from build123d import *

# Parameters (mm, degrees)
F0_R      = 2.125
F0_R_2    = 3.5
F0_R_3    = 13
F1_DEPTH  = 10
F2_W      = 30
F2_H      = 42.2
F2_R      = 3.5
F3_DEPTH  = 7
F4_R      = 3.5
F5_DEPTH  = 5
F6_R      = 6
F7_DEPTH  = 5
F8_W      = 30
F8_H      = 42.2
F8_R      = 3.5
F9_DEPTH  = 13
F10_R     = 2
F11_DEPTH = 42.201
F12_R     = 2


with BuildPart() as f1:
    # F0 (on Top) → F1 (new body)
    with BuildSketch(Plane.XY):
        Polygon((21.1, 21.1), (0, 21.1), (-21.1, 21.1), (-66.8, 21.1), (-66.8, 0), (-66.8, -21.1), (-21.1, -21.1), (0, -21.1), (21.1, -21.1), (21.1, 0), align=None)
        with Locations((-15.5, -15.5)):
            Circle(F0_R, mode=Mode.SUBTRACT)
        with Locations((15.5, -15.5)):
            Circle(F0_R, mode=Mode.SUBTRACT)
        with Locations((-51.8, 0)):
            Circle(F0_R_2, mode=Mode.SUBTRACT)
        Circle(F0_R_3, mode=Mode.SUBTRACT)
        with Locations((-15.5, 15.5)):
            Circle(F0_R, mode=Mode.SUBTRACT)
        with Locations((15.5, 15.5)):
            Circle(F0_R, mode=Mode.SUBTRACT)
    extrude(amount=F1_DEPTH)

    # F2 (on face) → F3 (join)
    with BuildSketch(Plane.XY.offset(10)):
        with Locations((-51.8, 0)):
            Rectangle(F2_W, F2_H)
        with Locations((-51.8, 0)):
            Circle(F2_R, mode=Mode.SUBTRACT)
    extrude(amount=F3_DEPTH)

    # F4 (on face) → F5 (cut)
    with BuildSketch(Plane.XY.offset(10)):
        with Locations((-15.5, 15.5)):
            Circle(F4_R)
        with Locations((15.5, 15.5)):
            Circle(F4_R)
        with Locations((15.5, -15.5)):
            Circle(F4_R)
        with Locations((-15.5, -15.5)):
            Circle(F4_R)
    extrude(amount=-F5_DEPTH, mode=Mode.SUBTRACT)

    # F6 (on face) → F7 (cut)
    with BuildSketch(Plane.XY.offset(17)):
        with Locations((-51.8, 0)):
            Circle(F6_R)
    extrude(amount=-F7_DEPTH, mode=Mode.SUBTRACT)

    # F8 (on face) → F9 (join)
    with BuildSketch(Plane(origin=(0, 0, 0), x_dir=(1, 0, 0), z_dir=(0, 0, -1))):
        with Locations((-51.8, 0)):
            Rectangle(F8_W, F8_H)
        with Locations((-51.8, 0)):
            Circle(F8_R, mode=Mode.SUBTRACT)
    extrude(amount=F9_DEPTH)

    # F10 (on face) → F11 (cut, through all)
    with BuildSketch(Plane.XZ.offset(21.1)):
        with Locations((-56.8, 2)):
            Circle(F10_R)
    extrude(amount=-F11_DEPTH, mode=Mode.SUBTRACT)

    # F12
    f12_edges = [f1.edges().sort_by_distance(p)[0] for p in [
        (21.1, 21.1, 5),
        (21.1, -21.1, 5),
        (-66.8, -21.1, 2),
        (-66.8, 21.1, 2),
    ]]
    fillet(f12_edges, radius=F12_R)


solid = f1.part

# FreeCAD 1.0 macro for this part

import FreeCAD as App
import Part
import Sketcher


def edges_at(feature, points):
    """Names of the edges that pass closest to the given points."""
    edges = feature.Shape.Edges
    near = lambda p: min(range(len(edges)), key=lambda i: edges[i].distToShape(Part.Vertex(*p))[0])
    return sorted({f"Edge{near(p) + 1}" for p in points})

doc = App.newDocument("Part")
body = doc.addObject("PartDesign::Body", "Body")

# Sketch on XY plane
sketch1 = body.newObject("Sketcher::SketchObject", "Sketch")
sketch1.AttachmentSupport = (doc.getObject("XY_Plane"), [""])
sketch1.MapMode = "FlatFace"
sketch1.addGeometry([
    Part.LineSegment(App.Vector(21.1, 21.1, 0), App.Vector(-66.8, 21.1, 0)),  # 0
    Part.LineSegment(App.Vector(-66.8, 21.1, 0), App.Vector(-66.8, -21.1, 0)),  # 1
    Part.LineSegment(App.Vector(-66.8, -21.1, 0), App.Vector(21.1, -21.1, 0)),  # 2
    Part.LineSegment(App.Vector(21.1, -21.1, 0), App.Vector(21.1, 21.1, 0)),  # 3
    Part.Circle(App.Vector(-15.5, -15.5, 0), App.Vector(0, 0, 1), 2.125),  # 4
    Part.Circle(App.Vector(15.5, -15.5, 0), App.Vector(0, 0, 1), 2.125),  # 5
    Part.Circle(App.Vector(-51.8, 0, 0), App.Vector(0, 0, 1), 3.5),  # 6
    Part.Circle(App.Vector(0, 0, 0), App.Vector(0, 0, 1), 13),  # 7
    Part.Circle(App.Vector(-15.5, 15.5, 0), App.Vector(0, 0, 1), 2.125),  # 8
    Part.Circle(App.Vector(15.5, 15.5, 0), App.Vector(0, 0, 1), 2.125),  # 9
], False)
sketch1.addConstraint([
    Sketcher.Constraint("Coincident", 0, 2, 1, 1),
    Sketcher.Constraint("Coincident", 1, 2, 2, 1),
    Sketcher.Constraint("Coincident", 2, 2, 3, 1),
    Sketcher.Constraint("Coincident", 3, 2, 0, 1),
    Sketcher.Constraint("Horizontal", 0),
    Sketcher.Constraint("Vertical", 1),
    Sketcher.Constraint("Horizontal", 2),
    Sketcher.Constraint("Vertical", 3),
    Sketcher.Constraint("Coincident", 7, 3, -1, 1),
    Sketcher.Constraint("Equal", 4, 5),
    Sketcher.Constraint("Equal", 5, 8),
    Sketcher.Constraint("Equal", 8, 9),
    Sketcher.Constraint("Symmetric", 5, 3, 8, 3, -1, 1),
    Sketcher.Constraint("Symmetric", 4, 3, 9, 3, -1, 1),
    Sketcher.Constraint("Symmetric", 4, 3, 5, 3, -2),
    Sketcher.Constraint("PointOnObject", 6, 3, -1),
    Sketcher.Constraint("Diameter", 6, 7.0),
    Sketcher.Constraint("Diameter", 7, 26.0),
    Sketcher.Constraint("Diameter", 4, 4.25),
    Sketcher.Constraint("DistanceX", 0, 2, 0, 1, 87.9),
    Sketcher.Constraint("DistanceY", 1, 2, 1, 1, 42.2),
    Sketcher.Constraint("DistanceX", 4, 3, 5, 3, 31.0),
    Sketcher.Constraint("DistanceY", 4, 3, 8, 3, 31.0),
    Sketcher.Constraint("DistanceX", 0, 2, 6, 3, 15.0),
    Sketcher.Constraint("DistanceX", 6, 3, -1, 1, 51.8),
    Sketcher.Constraint("DistanceY", -1, 1, 0, 2, 21.1),
])
pad1 = body.newObject("PartDesign::Pad", "Pad")
pad1.Profile = sketch1
pad1.Length = 10

# Sketch on XY plane
sketch2 = body.newObject("Sketcher::SketchObject", "Sketch001")
sketch2.AttachmentSupport = (doc.getObject("XY_Plane"), [""])
sketch2.MapMode = "FlatFace"
sketch2.AttachmentOffset = App.Placement(App.Vector(0, 0, 10), App.Rotation())
sketch2.addGeometry([
    Part.LineSegment(App.Vector(-66.8, 21.1, 0), App.Vector(-66.8, -21.1, 0)),  # 0
    Part.LineSegment(App.Vector(-66.8, -21.1, 0), App.Vector(-36.8, -21.1, 0)),  # 1
    Part.LineSegment(App.Vector(-36.8, -21.1, 0), App.Vector(-36.8, 21.1, 0)),  # 2
    Part.LineSegment(App.Vector(-36.8, 21.1, 0), App.Vector(-66.8, 21.1, 0)),  # 3
    Part.Circle(App.Vector(-51.8, 0, 0), App.Vector(0, 0, 1), 3.5),  # 4
], False)
sketch2.addConstraint([
    Sketcher.Constraint("Coincident", 0, 2, 1, 1),
    Sketcher.Constraint("Coincident", 1, 2, 2, 1),
    Sketcher.Constraint("Coincident", 2, 2, 3, 1),
    Sketcher.Constraint("Coincident", 3, 2, 0, 1),
    Sketcher.Constraint("Vertical", 0),
    Sketcher.Constraint("Horizontal", 1),
    Sketcher.Constraint("Vertical", 2),
    Sketcher.Constraint("Horizontal", 3),
    Sketcher.Constraint("PointOnObject", 4, 3, -1),
    Sketcher.Constraint("Diameter", 4, 7.0),
    Sketcher.Constraint("DistanceX", 1, 1, 1, 2, 30.0),
    Sketcher.Constraint("DistanceY", 0, 2, 0, 1, 42.2),
    Sketcher.Constraint("DistanceX", 0, 2, 4, 3, 15.0),
    Sketcher.Constraint("DistanceX", 4, 3, -1, 1, 51.8),
    Sketcher.Constraint("DistanceY", 0, 2, -1, 1, 21.1),
])
pad2 = body.newObject("PartDesign::Pad", "Pad001")
pad2.Profile = sketch2
pad2.Length = 7

# Sketch on XY plane
sketch3 = body.newObject("Sketcher::SketchObject", "Sketch002")
sketch3.AttachmentSupport = (doc.getObject("XY_Plane"), [""])
sketch3.MapMode = "FlatFace"
sketch3.AttachmentOffset = App.Placement(App.Vector(0, 0, 10), App.Rotation())
sketch3.addGeometry([
    Part.Circle(App.Vector(-15.5, 15.5, 0), App.Vector(0, 0, 1), 3.5),
    Part.Circle(App.Vector(15.5, 15.5, 0), App.Vector(0, 0, 1), 3.5),
    Part.Circle(App.Vector(15.5, -15.5, 0), App.Vector(0, 0, 1), 3.5),
    Part.Circle(App.Vector(-15.5, -15.5, 0), App.Vector(0, 0, 1), 3.5),
], False)
sketch3.addConstraint([
    Sketcher.Constraint("Equal", 0, 1),
    Sketcher.Constraint("Equal", 1, 2),
    Sketcher.Constraint("Equal", 2, 3),
    Sketcher.Constraint("Symmetric", 0, 3, 2, 3, -1, 1),
    Sketcher.Constraint("Symmetric", 1, 3, 3, 3, -1, 1),
    Sketcher.Constraint("Symmetric", 0, 3, 1, 3, -2),
    Sketcher.Constraint("Diameter", 0, 7.0),
    Sketcher.Constraint("DistanceX", 0, 3, 1, 3, 31.0),
    Sketcher.Constraint("DistanceY", 2, 3, 1, 3, 31.0),
])
pocket1 = body.newObject("PartDesign::Pocket", "Pocket")
pocket1.Profile = sketch3
pocket1.Length = 5

# Sketch on XY plane
sketch4 = body.newObject("Sketcher::SketchObject", "Sketch003")
sketch4.AttachmentSupport = (doc.getObject("XY_Plane"), [""])
sketch4.MapMode = "FlatFace"
sketch4.AttachmentOffset = App.Placement(App.Vector(0, 0, 17), App.Rotation())
sketch4.addGeometry(Part.Circle(App.Vector(-51.8, 0, 0), App.Vector(0, 0, 1), 6), False)
sketch4.addConstraint([
    Sketcher.Constraint("PointOnObject", 0, 3, -1),
    Sketcher.Constraint("Diameter", 0, 12.0),
    Sketcher.Constraint("DistanceX", 0, 3, -1, 1, 51.8),
])
pocket2 = body.newObject("PartDesign::Pocket", "Pocket001")
pocket2.Profile = sketch4
pocket2.Length = 5

# Sketch on XY plane
sketch5 = body.newObject("Sketcher::SketchObject", "Sketch004")
sketch5.AttachmentSupport = (doc.getObject("XY_Plane"), [""])
sketch5.MapMode = "FlatFace"
sketch5.addGeometry([
    Part.LineSegment(App.Vector(-66.8, -21.1, 0), App.Vector(-66.8, 21.1, 0)),  # 0
    Part.LineSegment(App.Vector(-66.8, 21.1, 0), App.Vector(-36.8, 21.1, 0)),  # 1
    Part.LineSegment(App.Vector(-36.8, 21.1, 0), App.Vector(-36.8, -21.1, 0)),  # 2
    Part.LineSegment(App.Vector(-36.8, -21.1, 0), App.Vector(-66.8, -21.1, 0)),  # 3
    Part.Circle(App.Vector(-51.8, 0, 0), App.Vector(0, 0, 1), 3.5),  # 4
], False)
sketch5.addConstraint([
    Sketcher.Constraint("Coincident", 0, 2, 1, 1),
    Sketcher.Constraint("Coincident", 1, 2, 2, 1),
    Sketcher.Constraint("Coincident", 2, 2, 3, 1),
    Sketcher.Constraint("Coincident", 3, 2, 0, 1),
    Sketcher.Constraint("Vertical", 0),
    Sketcher.Constraint("Horizontal", 1),
    Sketcher.Constraint("Vertical", 2),
    Sketcher.Constraint("Horizontal", 3),
    Sketcher.Constraint("PointOnObject", 4, 3, -1),
    Sketcher.Constraint("Diameter", 4, 7.0),
    Sketcher.Constraint("DistanceX", 1, 1, 1, 2, 30.0),
    Sketcher.Constraint("DistanceY", 0, 1, 0, 2, 42.2),
    Sketcher.Constraint("DistanceX", 0, 2, 4, 3, 15.0),
    Sketcher.Constraint("DistanceX", 4, 3, -1, 1, 51.8),
    Sketcher.Constraint("DistanceY", -1, 1, 0, 2, 21.1),
])
pad3 = body.newObject("PartDesign::Pad", "Pad002")
pad3.Profile = sketch5
pad3.Length = 13
pad3.Reversed = True

# Sketch on XZ plane
sketch6 = body.newObject("Sketcher::SketchObject", "Sketch005")
sketch6.AttachmentSupport = (doc.getObject("XZ_Plane"), [""])
sketch6.MapMode = "FlatFace"
sketch6.AttachmentOffset = App.Placement(App.Vector(0, 0, 21.1), App.Rotation())
sketch6.addGeometry(Part.Circle(App.Vector(-56.8, 2, 0), App.Vector(0, 0, 1), 2), False)
sketch6.addConstraint([
    Sketcher.Constraint("Diameter", 0, 4.0),
    Sketcher.Constraint("DistanceY", -1, 1, 0, 3, 2.0),
    Sketcher.Constraint("DistanceX", 0, 3, -1, 1, 56.8),
])
pocket3 = body.newObject("PartDesign::Pocket", "Pocket002")
pocket3.Profile = sketch6
pocket3.Type = "ThroughAll"
doc.recompute()

fillet = body.newObject("PartDesign::Fillet", "Fillet")
fillet.Base = (pocket3, edges_at(pocket3, [
    (21.1, 21.1, 5),
    (21.1, -21.1, 5),
    (-66.8, -21.1, 2),
    (-66.8, 21.1, 2),
]))
fillet.Radius = 2

doc.recompute()
